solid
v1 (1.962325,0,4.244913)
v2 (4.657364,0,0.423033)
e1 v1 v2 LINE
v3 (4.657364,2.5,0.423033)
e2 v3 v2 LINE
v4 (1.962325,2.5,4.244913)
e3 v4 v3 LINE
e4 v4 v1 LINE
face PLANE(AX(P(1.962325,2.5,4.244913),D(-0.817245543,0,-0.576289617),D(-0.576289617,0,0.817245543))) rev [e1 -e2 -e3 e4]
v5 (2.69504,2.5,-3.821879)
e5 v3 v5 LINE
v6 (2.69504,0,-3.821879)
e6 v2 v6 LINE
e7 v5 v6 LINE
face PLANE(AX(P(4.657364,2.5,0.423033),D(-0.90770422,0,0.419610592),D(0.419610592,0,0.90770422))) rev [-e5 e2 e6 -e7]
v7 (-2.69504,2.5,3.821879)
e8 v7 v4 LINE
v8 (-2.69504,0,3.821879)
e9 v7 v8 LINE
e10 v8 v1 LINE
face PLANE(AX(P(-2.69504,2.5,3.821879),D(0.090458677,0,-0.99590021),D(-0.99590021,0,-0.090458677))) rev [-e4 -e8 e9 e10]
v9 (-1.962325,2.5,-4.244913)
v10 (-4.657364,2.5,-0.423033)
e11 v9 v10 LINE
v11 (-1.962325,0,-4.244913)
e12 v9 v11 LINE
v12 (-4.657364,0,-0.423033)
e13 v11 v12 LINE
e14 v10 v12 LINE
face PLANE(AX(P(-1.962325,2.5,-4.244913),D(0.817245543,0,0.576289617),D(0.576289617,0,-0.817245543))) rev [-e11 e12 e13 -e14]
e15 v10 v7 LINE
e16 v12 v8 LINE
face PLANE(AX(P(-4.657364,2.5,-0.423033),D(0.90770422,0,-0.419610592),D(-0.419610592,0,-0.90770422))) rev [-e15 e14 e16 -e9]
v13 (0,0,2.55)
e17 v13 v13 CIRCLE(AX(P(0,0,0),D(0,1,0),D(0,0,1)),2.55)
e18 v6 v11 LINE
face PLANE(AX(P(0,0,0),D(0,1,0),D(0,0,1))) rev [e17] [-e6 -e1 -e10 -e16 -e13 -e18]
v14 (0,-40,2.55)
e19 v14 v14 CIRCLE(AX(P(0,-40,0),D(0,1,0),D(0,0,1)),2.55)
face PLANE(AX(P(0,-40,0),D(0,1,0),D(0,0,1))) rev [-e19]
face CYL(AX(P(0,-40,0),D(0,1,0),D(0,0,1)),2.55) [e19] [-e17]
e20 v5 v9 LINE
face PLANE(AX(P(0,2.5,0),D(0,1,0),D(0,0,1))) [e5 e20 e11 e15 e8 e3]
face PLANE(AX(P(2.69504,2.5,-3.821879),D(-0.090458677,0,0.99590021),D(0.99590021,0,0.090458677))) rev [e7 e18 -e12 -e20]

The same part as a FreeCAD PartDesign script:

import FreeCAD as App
import Part
import Sketcher

V = App.Vector
Q = App.Units.Quantity

doc = App.newDocument("Part")
body = doc.addObject("PartDesign::Body", "Body")

# Sketch on XZ plane
sketch1 = doc.addObject("Sketcher::SketchObject", "Sketch")
body.addObject(sketch1)
sketch1.AttachmentSupport = (doc.XZ_Plane, [""])
sketch1.MapMode = "FlatFace"
sketch1.addGeometry(Part.Circle(V(0, 0, 0), V(0, 0, 1), 2.5), False)
sketch1.addConstraint([
    Sketcher.Constraint("Coincident", 0, 3, -1, 1),
    Sketcher.Constraint("Diameter", 0, 5.1),
])
pad1 = doc.addObject("PartDesign::Pad", "Pad")
body.addObject(pad1)
pad1.Profile = sketch1
pad1.Length = 40

# Sketch on XZ plane
sketch2 = doc.addObject("Sketcher::SketchObject", "Sketch001")
body.addObject(sketch2)
sketch2.AttachmentSupport = (doc.XZ_Plane, [""])
sketch2.MapMode = "FlatFace"
sketch2.addGeometry([
    Part.LineSegment(V(2.7, -3.8, 0), V(-2, -4.2, 0)),  # 0
    Part.LineSegment(V(-2, -4.2, 0), V(-4.7, -0.4, 0)),  # 1
    Part.LineSegment(V(-4.7, -0.4, 0), V(-2.7, 3.8, 0)),  # 2
    Part.LineSegment(V(-2.7, 3.8, 0), V(2, 4.2, 0)),  # 3
    Part.LineSegment(V(2, 4.2, 0), V(4.7, 0.4, 0)),  # 4
    Part.LineSegment(V(4.7, 0.4, 0), V(2.7, -3.8, 0)),  # 5
], False)
sketch2.addConstraint([
    Sketcher.Constraint("Coincident", 0, 2, 1, 1),
    Sketcher.Constraint("Coincident", 1, 2, 2, 1),
    Sketcher.Constraint("Coincident", 2, 2, 3, 1),
    Sketcher.Constraint("Coincident", 3, 2, 4, 1),
    Sketcher.Constraint("Coincident", 4, 2, 5, 1),
    Sketcher.Constraint("Coincident", 5, 2, 0, 1),
    Sketcher.Constraint("Symmetric", 0, 2, 3, 2, -1, 1),
    Sketcher.Constraint("Symmetric", 1, 2, 4, 2, -1, 1),
    Sketcher.Constraint("Symmetric", 2, 2, 5, 2, -1, 1),
    Sketcher.Constraint("Equal", 0, 1),
    Sketcher.Constraint("Equal", 1, 2),
    Sketcher.Constraint("Angle", 0, Q("-174.810005 deg")),
    Sketcher.Constraint("Angle", 1, Q("125.189995 deg")),
    Sketcher.Constraint("Angle", 2, Q("65.189995 deg")),
    Sketcher.Constraint("DistanceX", 2, 2, -1, 1, 2.69504),
])
pad2 = doc.addObject("PartDesign::Pad", "Pad001")
body.addObject(pad2)
pad2.Profile = sketch2
pad2.Length = 2.5
pad2.Reversed = True

doc.recompute()
